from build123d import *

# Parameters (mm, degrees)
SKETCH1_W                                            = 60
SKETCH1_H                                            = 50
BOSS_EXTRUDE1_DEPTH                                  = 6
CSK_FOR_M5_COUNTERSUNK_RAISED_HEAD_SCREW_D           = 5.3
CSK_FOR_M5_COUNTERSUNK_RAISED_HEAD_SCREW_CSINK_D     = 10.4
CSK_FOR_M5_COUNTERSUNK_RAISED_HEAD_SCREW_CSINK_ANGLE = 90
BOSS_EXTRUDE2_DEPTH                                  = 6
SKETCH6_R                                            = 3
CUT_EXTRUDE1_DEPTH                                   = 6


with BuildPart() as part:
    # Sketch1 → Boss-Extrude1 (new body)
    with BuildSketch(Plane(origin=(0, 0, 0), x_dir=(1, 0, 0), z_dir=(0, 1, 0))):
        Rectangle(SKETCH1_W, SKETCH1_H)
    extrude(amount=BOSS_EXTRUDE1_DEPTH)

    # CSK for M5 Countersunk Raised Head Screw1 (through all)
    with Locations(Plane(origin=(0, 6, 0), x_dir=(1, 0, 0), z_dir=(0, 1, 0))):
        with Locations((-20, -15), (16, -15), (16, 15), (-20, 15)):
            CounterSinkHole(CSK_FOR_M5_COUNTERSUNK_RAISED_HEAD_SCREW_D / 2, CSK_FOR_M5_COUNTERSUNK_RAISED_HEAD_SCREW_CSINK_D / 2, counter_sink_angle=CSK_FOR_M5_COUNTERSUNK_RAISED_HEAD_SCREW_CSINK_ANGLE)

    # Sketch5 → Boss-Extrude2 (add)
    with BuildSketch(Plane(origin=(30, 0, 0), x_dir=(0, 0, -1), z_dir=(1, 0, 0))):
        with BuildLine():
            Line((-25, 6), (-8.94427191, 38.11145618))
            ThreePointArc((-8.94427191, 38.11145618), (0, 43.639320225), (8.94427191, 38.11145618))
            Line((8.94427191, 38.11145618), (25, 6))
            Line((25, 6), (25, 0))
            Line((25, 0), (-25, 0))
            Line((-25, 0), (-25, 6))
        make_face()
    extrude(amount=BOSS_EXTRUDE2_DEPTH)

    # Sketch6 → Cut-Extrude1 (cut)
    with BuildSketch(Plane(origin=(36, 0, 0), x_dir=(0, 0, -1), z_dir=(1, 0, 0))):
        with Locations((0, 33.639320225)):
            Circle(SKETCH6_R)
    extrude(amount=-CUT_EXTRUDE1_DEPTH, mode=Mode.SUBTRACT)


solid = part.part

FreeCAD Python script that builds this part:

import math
import FreeCAD as App
import Part
import Sketcher
Q = App.Units.Quantity


def add_polygon(sketch, points):
    """Adds a closed chain of lines whose ends are joined by coincident constraints."""
    first, n = sketch.GeometryCount, len(points)
    for a, b in zip(points, points[1:] + points[:1]):
        sketch.addGeometry(Part.LineSegment(App.Vector(*a, 0), App.Vector(*b, 0)), False)
    for i in range(n):
        sketch.addConstraint(Sketcher.Constraint("Coincident", first + i, 2, first + (i + 1) % n, 1))

doc = App.newDocument("Part")
body = doc.addObject("PartDesign::Body", "Body")

sketch1 = body.newObject("Sketcher::SketchObject", "Sketch")
sketch1.AttachmentSupport = (doc.getObject("XZ_Plane"), [""])
sketch1.MapMode = "FlatFace"
add_polygon(sketch1, [(-30, -25), (-30, 25), (30, 25), (30, -25)])
sketch1.addConstraint([
    Sketcher.Constraint("Vertical", 0),
    Sketcher.Constraint("Horizontal", 1),
    Sketcher.Constraint("Vertical", 2),
    Sketcher.Constraint("Horizontal", 3),
    Sketcher.Constraint("Symmetric", 0, 2, 2, 2, -1, 1),
    Sketcher.Constraint("DistanceX", 1, 1, 1, 2, Q("60 mm")),
    Sketcher.Constraint("DistanceY", 0, 1, 0, 2, Q("50 mm")),
])
pad1 = body.newObject("PartDesign::Pad", "Pad")
pad1.Profile = sketch1
pad1.Length = 6
pad1.Reversed = True

sketch2 = body.newObject("Sketcher::SketchObject", "Sketch001")
sketch2.AttachmentSupport = (doc.getObject("XZ_Plane"), [""])
sketch2.MapMode = "FlatFace"
sketch2.AttachmentOffset = App.Placement(App.Vector(0, 0, -6), App.Rotation())
sketch2.addGeometry([
    Part.Circle(App.Vector(-20, 15, 0), App.Vector(0, 0, 1), 2.65),
    Part.Circle(App.Vector(16, 15, 0), App.Vector(0, 0, 1), 2.65),
    Part.Circle(App.Vector(16, -15, 0), App.Vector(0, 0, 1), 2.65),
    Part.Circle(App.Vector(-20, -15, 0), App.Vector(0, 0, 1), 2.65),
], False)
sketch2.addConstraint([
    Sketcher.Constraint("Equal", 0, 1),
    Sketcher.Constraint("Equal", 1, 2),
    Sketcher.Constraint("Equal", 2, 3),
    Sketcher.Constraint("Symmetric", 1, 3, 2, 3, -1),
    Sketcher.Constraint("Symmetric", 0, 3, 3, 3, -1),
    Sketcher.Constraint("Horizontal", 0, 3, 1, 3),
    Sketcher.Constraint("Diameter", 0, Q("5.3 mm")),
    Sketcher.Constraint("DistanceX", 0, 3, -1, 1, Q("20 mm")),
    Sketcher.Constraint("DistanceY", -1, 1, 0, 3, Q("15 mm")),
    Sketcher.Constraint("DistanceX", -1, 1, 1, 3, Q("16 mm")),
])
doc.recompute()
hole = body.newObject("PartDesign::Hole", "Hole")
hole.Profile = sketch2
hole.ThreadType = "None"
hole.Diameter = 5.3
hole.DepthType = "ThroughAll"
hole.HoleCutType = "Countersink"
hole.HoleCutDiameter = 10.4
hole.HoleCutCountersinkAngle = 90
hole.Reversed = True

sketch3 = body.newObject("Sketcher::SketchObject", "Sketch002")
sketch3.AttachmentSupport = (doc.getObject("YZ_Plane"), [""])
sketch3.MapMode = "FlatFace"
sketch3.AttachmentOffset = App.Placement(App.Vector(0, 0, 30), App.Rotation())
sketch3.addGeometry([
    Part.LineSegment(App.Vector(38.111456, 8.944272, 0), App.Vector(6, 25, 0)),
    Part.LineSegment(App.Vector(6, 25, 0), App.Vector(0, 25, 0)),
    Part.LineSegment(App.Vector(0, 25, 0), App.Vector(0, -25, 0)),
    Part.LineSegment(App.Vector(0, -25, 0), App.Vector(6, -25, 0)),
    Part.LineSegment(App.Vector(6, -25, 0), App.Vector(38.111456, -8.944272, 0)),
    Part.ArcOfCircle(Part.Circle(App.Vector(33.63932, 0, 0), App.Vector(0, 0, 1), 10), math.radians(-63.434949), math.radians(63.434949)),
], False)
sketch3.addConstraint([
    Sketcher.Constraint("Coincident", 0, 2, 1, 1),
    Sketcher.Constraint("Coincident", 1, 2, 2, 1),
    Sketcher.Constraint("Coincident", 2, 2, 3, 1),
    Sketcher.Constraint("Coincident", 3, 2, 4, 1),
    Sketcher.Constraint("Tangent", 4, 2, 5, 1),
    Sketcher.Constraint("Tangent", 5, 2, 0, 1),
    Sketcher.Constraint("Horizontal", 1),
    Sketcher.Constraint("Vertical", 2),
    Sketcher.Constraint("Horizontal", 3),
    Sketcher.Constraint("Symmetric", 1, 2, 2, 2, -1, 1),
    Sketcher.Constraint("Symmetric", 4, 2, 5, 2, -1),
    Sketcher.Constraint("Radius", 5, Q("10 mm")),
    Sketcher.Constraint("DistanceX", 1, 2, 1, 1, Q("6 mm")),
    Sketcher.Constraint("DistanceY", 2, 2, 2, 1, Q("50 mm")),
    Sketcher.Constraint("Distance", 0, Q("35.901699 mm")),
])
pad2 = body.newObject("PartDesign::Pad", "Pad001")
pad2.Profile = sketch3
pad2.Length = 6

sketch4 = body.newObject("Sketcher::SketchObject", "Sketch003")
sketch4.AttachmentSupport = (doc.getObject("YZ_Plane"), [""])
sketch4.MapMode = "FlatFace"
sketch4.AttachmentOffset = App.Placement(App.Vector(0, 0, 36), App.Rotation())
sketch4.addGeometry(Part.Circle(App.Vector(33.63932, 0, 0), App.Vector(0, 0, 1), 3), False)
sketch4.addConstraint([
    Sketcher.Constraint("PointOnObject", 0, 3, -1),
    Sketcher.Constraint("Diameter", 0, Q("6 mm")),
    Sketcher.Constraint("DistanceX", -1, 1, 0, 3, Q("33.63932 mm")),
])
pocket1 = body.newObject("PartDesign::Pocket", "Pocket")
pocket1.Profile = sketch4
pocket1.Length = 6

doc.recompute()
